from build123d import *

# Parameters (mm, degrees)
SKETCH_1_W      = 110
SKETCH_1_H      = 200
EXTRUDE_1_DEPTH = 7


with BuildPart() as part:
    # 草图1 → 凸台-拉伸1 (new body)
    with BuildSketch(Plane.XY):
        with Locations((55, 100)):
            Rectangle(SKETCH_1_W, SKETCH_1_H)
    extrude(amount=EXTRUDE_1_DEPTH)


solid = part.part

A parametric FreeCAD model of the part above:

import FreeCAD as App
import Part
import Sketcher


def add_polygon(sketch, points):
    """Adds a closed chain of lines whose ends are joined by coincident constraints."""
    first, n = sketch.GeometryCount, len(points)
    for a, b in zip(points, points[1:] + points[:1]):
        sketch.addGeometry(Part.LineSegment(App.Vector(*a, 0), App.Vector(*b, 0)), False)
    for i in range(n):
        sketch.addConstraint(Sketcher.Constraint("Coincident", first + i, 2, first + (i + 1) % n, 1))

doc = App.newDocument("Part")
body = doc.addObject("PartDesign::Body", "Body")

# Sketch on XY plane
sketch1 = body.newObject("Sketcher::SketchObject", "Sketch")
sketch1.AttachmentSupport = (doc.getObject("XY_Plane"), [""])
sketch1.MapMode = "FlatFace"
add_polygon(sketch1, [(0, 200), (0, 0), (110, 0), (110, 200)])  # lines 0-3
sketch1.addConstraint(Sketcher.Constraint("Vertical", 0))
sketch1.addConstraint(Sketcher.Constraint("Horizontal", 1))
sketch1.addConstraint(Sketcher.Constraint("Vertical", 2))
sketch1.addConstraint(Sketcher.Constraint("Horizontal", 3))
sketch1.addConstraint(Sketcher.Constraint("Coincident", 0, 2, -1, 1))
sketch1.addConstraint(Sketcher.Constraint("DistanceX", 1, 1, 1, 2, 110.0))
sketch1.addConstraint(Sketcher.Constraint("DistanceY", 0, 2, 0, 1, 200.0))
pad1 = body.newObject("PartDesign::Pad", "Pad")
pad1.Profile = sketch1
pad1.Length = 7

doc.recompute()
